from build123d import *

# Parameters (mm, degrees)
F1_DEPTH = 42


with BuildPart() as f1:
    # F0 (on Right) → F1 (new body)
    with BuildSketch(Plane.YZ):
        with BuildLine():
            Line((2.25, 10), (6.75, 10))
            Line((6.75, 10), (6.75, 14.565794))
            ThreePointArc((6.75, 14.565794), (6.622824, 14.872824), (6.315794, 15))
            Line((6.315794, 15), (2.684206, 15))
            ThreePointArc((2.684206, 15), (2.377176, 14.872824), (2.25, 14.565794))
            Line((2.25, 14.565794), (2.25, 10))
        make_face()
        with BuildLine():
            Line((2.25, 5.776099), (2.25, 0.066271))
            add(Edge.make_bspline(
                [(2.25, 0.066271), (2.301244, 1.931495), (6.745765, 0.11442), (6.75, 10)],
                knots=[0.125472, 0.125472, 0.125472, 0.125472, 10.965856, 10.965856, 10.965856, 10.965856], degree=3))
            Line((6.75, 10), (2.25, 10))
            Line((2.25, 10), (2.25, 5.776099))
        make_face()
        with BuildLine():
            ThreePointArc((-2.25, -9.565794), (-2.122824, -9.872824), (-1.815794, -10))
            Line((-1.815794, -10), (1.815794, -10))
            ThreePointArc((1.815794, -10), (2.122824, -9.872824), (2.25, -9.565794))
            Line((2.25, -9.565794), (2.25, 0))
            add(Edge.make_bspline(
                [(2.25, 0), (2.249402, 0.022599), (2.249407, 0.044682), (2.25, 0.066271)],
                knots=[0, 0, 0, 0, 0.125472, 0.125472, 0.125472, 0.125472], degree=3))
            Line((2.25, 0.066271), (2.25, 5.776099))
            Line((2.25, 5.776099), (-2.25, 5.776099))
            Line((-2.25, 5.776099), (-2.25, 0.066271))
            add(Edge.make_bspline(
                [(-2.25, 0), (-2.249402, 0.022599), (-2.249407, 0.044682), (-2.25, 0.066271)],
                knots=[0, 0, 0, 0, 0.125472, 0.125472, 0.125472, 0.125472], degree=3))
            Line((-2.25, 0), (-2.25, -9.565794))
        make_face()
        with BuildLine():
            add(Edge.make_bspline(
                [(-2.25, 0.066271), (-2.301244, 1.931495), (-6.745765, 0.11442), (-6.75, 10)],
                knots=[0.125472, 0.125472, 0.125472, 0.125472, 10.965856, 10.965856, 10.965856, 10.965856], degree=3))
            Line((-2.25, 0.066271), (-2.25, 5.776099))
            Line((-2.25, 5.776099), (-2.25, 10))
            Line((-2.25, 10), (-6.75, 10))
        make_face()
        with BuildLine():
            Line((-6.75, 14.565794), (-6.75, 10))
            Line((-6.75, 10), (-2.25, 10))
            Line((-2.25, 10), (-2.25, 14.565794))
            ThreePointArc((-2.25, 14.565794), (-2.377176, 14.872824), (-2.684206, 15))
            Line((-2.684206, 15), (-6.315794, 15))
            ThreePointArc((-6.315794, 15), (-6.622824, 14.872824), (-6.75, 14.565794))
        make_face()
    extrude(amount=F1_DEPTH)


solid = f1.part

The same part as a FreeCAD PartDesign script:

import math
import FreeCAD as App
import Part
import Sketcher
from FreeCAD import Vector

doc = App.newDocument("Part")
body = doc.addObject("PartDesign::Body", "Body")

# Sketch on YZ plane
sketch1 = body.newObject("Sketcher::SketchObject", "Sketch")
sketch1.AttachmentSupport = (doc.getObject("YZ_Plane"), [""])
sketch1.MapMode = "FlatFace"
sketch1.addGeometry([
    Part.LineSegment(Vector(6.75, 10, 0), Vector(6.75, 14.565794, 0)),  # 0
    Part.ArcOfCircle(Part.Circle(Vector(6.315794, 14.565794, 0), Vector(0, 0, 1), 0.434206), math.radians(0.000003), math.radians(89.999997)),  # 1
    Part.LineSegment(Vector(6.315794, 15, 0), Vector(2.684206, 15, 0)),  # 2
    Part.ArcOfCircle(Part.Circle(Vector(2.684206, 14.565794, 0), Vector(0, 0, 1), 0.434206), math.radians(90.000003), math.radians(179.999997)),  # 3
    Part.LineSegment(Vector(2.25, 14.565794, 0), Vector(2.25, 5.776099, 0)),  # 4
    Part.LineSegment(Vector(2.25, 5.776099, 0), Vector(-2.25, 5.776099, 0)),  # 5
    Part.LineSegment(Vector(-2.25, 5.776099, 0), Vector(-2.25, 14.565794, 0)),  # 6
    Part.ArcOfCircle(Part.Circle(Vector(-2.684206, 14.565794, 0), Vector(0, 0, 1), 0.434206), math.radians(0.000003), math.radians(89.999997)),  # 7
    Part.LineSegment(Vector(-2.684206, 15, 0), Vector(-6.315794, 15, 0)),  # 8
    Part.ArcOfCircle(Part.Circle(Vector(-6.315794, 14.565794, 0), Vector(0, 0, 1), 0.434206), math.radians(90.000003), math.radians(179.999997)),  # 9
    Part.LineSegment(Vector(-6.75, 14.565794, 0), Vector(-6.75, 10, 0)),  # 10
    Part.BSplineCurve([Vector(-2.25, 0.066271, 0), Vector(-2.301244, 1.931495, 0), Vector(-6.745765, 0.11442, 0), Vector(-6.75, 10, 0)], [4, 4], [0.125472, 10.965856], False, 3, [1, 1, 1, 1], False),  # 11
    Part.BSplineCurve([Vector(-2.25, 0, 0), Vector(-2.249402, 0.022599, 0), Vector(-2.249407, 0.044682, 0), Vector(-2.25, 0.066271, 0)], [4, 4], [0, 0.125472], False, 3, [1, 1, 1, 1], False),  # 12
    Part.LineSegment(Vector(-2.25, 0, 0), Vector(-2.25, -9.565794, 0)),  # 13
    Part.ArcOfCircle(Part.Circle(Vector(-1.815794, -9.565794, 0), Vector(0, 0, 1), 0.434206), math.radians(-179.999997), math.radians(-90.000003)),  # 14
    Part.LineSegment(Vector(-1.815794, -10, 0), Vector(1.815794, -10, 0)),  # 15
    Part.ArcOfCircle(Part.Circle(Vector(1.815794, -9.565794, 0), Vector(0, 0, 1), 0.434206), math.radians(-89.999997), math.radians(-0.000003)),  # 16
    Part.LineSegment(Vector(2.25, -9.565794, 0), Vector(2.25, 0, 0)),  # 17
    Part.BSplineCurve([Vector(2.25, 0, 0), Vector(2.249402, 0.022599, 0), Vector(2.249407, 0.044682, 0), Vector(2.25, 0.066271, 0)], [4, 4], [0, 0.125472], False, 3, [1, 1, 1, 1], False),  # 18
    Part.BSplineCurve([Vector(2.25, 0.066271, 0), Vector(2.301244, 1.931495, 0), Vector(6.745765, 0.11442, 0), Vector(6.75, 10, 0)], [4, 4], [0.125472, 10.965856], False, 3, [1, 1, 1, 1], False),  # 19
], False)
sketch1.addConstraint([
    Sketcher.Constraint("Block", 11),
    Sketcher.Constraint("Block", 12),
    Sketcher.Constraint("Block", 18),
    Sketcher.Constraint("Block", 19),
    Sketcher.Constraint("Tangent", 0, 2, 1, 1),
    Sketcher.Constraint("Tangent", 1, 2, 2, 1),
    Sketcher.Constraint("Tangent", 2, 2, 3, 1),
    Sketcher.Constraint("Tangent", 3, 2, 4, 1),
    Sketcher.Constraint("Coincident", 4, 2, 5, 1),
    Sketcher.Constraint("Coincident", 5, 2, 6, 1),
    Sketcher.Constraint("Tangent", 6, 2, 7, 1),
    Sketcher.Constraint("Tangent", 7, 2, 8, 1),
    Sketcher.Constraint("Tangent", 8, 2, 9, 1),
    Sketcher.Constraint("Tangent", 9, 2, 10, 1),
    Sketcher.Constraint("Coincident", 10, 2, 11, 2),
    Sketcher.Constraint("Coincident", 12, 1, 13, 1),
    Sketcher.Constraint("Tangent", 13, 2, 14, 1),
    Sketcher.Constraint("Tangent", 14, 2, 15, 1),
    Sketcher.Constraint("Tangent", 15, 2, 16, 1),
    Sketcher.Constraint("Tangent", 16, 2, 17, 1),
    Sketcher.Constraint("Coincident", 17, 2, 18, 1),
    Sketcher.Constraint("Coincident", 19, 2, 0, 1),
    Sketcher.Constraint("Vertical", 0),
    Sketcher.Constraint("Horizontal", 2),
    Sketcher.Constraint("Vertical", 4),
    Sketcher.Constraint("Horizontal", 5),
    Sketcher.Constraint("Vertical", 6),
    Sketcher.Constraint("Horizontal", 8),
    Sketcher.Constraint("Vertical", 10),
    Sketcher.Constraint("Vertical", 13),
    Sketcher.Constraint("Horizontal", 15),
    Sketcher.Constraint("Vertical", 17),
    Sketcher.Constraint("Equal", 1, 3),
    Sketcher.Constraint("Equal", 3, 7),
    Sketcher.Constraint("Equal", 7, 9),
    Sketcher.Constraint("Equal", 9, 14),
    Sketcher.Constraint("Equal", 14, 16),
    Sketcher.Constraint("Symmetric", 3, 3, 7, 3, -2),
    Sketcher.Constraint("Vertical", 6, 2, 13, 2),
    Sketcher.Constraint("DistanceY", -1, 1, 1, 2, 15.0),
    Sketcher.Constraint("DistanceY", 14, 2, -1, 1, 10.0),
    Sketcher.Constraint("Radius", 1, 0.434206),
    Sketcher.Constraint("DistanceY", -1, 1, 4, 2, 5.776099),
])
pad1 = body.newObject("PartDesign::Pad", "Pad")
pad1.Profile = sketch1
pad1.Length = 42

doc.recompute()
